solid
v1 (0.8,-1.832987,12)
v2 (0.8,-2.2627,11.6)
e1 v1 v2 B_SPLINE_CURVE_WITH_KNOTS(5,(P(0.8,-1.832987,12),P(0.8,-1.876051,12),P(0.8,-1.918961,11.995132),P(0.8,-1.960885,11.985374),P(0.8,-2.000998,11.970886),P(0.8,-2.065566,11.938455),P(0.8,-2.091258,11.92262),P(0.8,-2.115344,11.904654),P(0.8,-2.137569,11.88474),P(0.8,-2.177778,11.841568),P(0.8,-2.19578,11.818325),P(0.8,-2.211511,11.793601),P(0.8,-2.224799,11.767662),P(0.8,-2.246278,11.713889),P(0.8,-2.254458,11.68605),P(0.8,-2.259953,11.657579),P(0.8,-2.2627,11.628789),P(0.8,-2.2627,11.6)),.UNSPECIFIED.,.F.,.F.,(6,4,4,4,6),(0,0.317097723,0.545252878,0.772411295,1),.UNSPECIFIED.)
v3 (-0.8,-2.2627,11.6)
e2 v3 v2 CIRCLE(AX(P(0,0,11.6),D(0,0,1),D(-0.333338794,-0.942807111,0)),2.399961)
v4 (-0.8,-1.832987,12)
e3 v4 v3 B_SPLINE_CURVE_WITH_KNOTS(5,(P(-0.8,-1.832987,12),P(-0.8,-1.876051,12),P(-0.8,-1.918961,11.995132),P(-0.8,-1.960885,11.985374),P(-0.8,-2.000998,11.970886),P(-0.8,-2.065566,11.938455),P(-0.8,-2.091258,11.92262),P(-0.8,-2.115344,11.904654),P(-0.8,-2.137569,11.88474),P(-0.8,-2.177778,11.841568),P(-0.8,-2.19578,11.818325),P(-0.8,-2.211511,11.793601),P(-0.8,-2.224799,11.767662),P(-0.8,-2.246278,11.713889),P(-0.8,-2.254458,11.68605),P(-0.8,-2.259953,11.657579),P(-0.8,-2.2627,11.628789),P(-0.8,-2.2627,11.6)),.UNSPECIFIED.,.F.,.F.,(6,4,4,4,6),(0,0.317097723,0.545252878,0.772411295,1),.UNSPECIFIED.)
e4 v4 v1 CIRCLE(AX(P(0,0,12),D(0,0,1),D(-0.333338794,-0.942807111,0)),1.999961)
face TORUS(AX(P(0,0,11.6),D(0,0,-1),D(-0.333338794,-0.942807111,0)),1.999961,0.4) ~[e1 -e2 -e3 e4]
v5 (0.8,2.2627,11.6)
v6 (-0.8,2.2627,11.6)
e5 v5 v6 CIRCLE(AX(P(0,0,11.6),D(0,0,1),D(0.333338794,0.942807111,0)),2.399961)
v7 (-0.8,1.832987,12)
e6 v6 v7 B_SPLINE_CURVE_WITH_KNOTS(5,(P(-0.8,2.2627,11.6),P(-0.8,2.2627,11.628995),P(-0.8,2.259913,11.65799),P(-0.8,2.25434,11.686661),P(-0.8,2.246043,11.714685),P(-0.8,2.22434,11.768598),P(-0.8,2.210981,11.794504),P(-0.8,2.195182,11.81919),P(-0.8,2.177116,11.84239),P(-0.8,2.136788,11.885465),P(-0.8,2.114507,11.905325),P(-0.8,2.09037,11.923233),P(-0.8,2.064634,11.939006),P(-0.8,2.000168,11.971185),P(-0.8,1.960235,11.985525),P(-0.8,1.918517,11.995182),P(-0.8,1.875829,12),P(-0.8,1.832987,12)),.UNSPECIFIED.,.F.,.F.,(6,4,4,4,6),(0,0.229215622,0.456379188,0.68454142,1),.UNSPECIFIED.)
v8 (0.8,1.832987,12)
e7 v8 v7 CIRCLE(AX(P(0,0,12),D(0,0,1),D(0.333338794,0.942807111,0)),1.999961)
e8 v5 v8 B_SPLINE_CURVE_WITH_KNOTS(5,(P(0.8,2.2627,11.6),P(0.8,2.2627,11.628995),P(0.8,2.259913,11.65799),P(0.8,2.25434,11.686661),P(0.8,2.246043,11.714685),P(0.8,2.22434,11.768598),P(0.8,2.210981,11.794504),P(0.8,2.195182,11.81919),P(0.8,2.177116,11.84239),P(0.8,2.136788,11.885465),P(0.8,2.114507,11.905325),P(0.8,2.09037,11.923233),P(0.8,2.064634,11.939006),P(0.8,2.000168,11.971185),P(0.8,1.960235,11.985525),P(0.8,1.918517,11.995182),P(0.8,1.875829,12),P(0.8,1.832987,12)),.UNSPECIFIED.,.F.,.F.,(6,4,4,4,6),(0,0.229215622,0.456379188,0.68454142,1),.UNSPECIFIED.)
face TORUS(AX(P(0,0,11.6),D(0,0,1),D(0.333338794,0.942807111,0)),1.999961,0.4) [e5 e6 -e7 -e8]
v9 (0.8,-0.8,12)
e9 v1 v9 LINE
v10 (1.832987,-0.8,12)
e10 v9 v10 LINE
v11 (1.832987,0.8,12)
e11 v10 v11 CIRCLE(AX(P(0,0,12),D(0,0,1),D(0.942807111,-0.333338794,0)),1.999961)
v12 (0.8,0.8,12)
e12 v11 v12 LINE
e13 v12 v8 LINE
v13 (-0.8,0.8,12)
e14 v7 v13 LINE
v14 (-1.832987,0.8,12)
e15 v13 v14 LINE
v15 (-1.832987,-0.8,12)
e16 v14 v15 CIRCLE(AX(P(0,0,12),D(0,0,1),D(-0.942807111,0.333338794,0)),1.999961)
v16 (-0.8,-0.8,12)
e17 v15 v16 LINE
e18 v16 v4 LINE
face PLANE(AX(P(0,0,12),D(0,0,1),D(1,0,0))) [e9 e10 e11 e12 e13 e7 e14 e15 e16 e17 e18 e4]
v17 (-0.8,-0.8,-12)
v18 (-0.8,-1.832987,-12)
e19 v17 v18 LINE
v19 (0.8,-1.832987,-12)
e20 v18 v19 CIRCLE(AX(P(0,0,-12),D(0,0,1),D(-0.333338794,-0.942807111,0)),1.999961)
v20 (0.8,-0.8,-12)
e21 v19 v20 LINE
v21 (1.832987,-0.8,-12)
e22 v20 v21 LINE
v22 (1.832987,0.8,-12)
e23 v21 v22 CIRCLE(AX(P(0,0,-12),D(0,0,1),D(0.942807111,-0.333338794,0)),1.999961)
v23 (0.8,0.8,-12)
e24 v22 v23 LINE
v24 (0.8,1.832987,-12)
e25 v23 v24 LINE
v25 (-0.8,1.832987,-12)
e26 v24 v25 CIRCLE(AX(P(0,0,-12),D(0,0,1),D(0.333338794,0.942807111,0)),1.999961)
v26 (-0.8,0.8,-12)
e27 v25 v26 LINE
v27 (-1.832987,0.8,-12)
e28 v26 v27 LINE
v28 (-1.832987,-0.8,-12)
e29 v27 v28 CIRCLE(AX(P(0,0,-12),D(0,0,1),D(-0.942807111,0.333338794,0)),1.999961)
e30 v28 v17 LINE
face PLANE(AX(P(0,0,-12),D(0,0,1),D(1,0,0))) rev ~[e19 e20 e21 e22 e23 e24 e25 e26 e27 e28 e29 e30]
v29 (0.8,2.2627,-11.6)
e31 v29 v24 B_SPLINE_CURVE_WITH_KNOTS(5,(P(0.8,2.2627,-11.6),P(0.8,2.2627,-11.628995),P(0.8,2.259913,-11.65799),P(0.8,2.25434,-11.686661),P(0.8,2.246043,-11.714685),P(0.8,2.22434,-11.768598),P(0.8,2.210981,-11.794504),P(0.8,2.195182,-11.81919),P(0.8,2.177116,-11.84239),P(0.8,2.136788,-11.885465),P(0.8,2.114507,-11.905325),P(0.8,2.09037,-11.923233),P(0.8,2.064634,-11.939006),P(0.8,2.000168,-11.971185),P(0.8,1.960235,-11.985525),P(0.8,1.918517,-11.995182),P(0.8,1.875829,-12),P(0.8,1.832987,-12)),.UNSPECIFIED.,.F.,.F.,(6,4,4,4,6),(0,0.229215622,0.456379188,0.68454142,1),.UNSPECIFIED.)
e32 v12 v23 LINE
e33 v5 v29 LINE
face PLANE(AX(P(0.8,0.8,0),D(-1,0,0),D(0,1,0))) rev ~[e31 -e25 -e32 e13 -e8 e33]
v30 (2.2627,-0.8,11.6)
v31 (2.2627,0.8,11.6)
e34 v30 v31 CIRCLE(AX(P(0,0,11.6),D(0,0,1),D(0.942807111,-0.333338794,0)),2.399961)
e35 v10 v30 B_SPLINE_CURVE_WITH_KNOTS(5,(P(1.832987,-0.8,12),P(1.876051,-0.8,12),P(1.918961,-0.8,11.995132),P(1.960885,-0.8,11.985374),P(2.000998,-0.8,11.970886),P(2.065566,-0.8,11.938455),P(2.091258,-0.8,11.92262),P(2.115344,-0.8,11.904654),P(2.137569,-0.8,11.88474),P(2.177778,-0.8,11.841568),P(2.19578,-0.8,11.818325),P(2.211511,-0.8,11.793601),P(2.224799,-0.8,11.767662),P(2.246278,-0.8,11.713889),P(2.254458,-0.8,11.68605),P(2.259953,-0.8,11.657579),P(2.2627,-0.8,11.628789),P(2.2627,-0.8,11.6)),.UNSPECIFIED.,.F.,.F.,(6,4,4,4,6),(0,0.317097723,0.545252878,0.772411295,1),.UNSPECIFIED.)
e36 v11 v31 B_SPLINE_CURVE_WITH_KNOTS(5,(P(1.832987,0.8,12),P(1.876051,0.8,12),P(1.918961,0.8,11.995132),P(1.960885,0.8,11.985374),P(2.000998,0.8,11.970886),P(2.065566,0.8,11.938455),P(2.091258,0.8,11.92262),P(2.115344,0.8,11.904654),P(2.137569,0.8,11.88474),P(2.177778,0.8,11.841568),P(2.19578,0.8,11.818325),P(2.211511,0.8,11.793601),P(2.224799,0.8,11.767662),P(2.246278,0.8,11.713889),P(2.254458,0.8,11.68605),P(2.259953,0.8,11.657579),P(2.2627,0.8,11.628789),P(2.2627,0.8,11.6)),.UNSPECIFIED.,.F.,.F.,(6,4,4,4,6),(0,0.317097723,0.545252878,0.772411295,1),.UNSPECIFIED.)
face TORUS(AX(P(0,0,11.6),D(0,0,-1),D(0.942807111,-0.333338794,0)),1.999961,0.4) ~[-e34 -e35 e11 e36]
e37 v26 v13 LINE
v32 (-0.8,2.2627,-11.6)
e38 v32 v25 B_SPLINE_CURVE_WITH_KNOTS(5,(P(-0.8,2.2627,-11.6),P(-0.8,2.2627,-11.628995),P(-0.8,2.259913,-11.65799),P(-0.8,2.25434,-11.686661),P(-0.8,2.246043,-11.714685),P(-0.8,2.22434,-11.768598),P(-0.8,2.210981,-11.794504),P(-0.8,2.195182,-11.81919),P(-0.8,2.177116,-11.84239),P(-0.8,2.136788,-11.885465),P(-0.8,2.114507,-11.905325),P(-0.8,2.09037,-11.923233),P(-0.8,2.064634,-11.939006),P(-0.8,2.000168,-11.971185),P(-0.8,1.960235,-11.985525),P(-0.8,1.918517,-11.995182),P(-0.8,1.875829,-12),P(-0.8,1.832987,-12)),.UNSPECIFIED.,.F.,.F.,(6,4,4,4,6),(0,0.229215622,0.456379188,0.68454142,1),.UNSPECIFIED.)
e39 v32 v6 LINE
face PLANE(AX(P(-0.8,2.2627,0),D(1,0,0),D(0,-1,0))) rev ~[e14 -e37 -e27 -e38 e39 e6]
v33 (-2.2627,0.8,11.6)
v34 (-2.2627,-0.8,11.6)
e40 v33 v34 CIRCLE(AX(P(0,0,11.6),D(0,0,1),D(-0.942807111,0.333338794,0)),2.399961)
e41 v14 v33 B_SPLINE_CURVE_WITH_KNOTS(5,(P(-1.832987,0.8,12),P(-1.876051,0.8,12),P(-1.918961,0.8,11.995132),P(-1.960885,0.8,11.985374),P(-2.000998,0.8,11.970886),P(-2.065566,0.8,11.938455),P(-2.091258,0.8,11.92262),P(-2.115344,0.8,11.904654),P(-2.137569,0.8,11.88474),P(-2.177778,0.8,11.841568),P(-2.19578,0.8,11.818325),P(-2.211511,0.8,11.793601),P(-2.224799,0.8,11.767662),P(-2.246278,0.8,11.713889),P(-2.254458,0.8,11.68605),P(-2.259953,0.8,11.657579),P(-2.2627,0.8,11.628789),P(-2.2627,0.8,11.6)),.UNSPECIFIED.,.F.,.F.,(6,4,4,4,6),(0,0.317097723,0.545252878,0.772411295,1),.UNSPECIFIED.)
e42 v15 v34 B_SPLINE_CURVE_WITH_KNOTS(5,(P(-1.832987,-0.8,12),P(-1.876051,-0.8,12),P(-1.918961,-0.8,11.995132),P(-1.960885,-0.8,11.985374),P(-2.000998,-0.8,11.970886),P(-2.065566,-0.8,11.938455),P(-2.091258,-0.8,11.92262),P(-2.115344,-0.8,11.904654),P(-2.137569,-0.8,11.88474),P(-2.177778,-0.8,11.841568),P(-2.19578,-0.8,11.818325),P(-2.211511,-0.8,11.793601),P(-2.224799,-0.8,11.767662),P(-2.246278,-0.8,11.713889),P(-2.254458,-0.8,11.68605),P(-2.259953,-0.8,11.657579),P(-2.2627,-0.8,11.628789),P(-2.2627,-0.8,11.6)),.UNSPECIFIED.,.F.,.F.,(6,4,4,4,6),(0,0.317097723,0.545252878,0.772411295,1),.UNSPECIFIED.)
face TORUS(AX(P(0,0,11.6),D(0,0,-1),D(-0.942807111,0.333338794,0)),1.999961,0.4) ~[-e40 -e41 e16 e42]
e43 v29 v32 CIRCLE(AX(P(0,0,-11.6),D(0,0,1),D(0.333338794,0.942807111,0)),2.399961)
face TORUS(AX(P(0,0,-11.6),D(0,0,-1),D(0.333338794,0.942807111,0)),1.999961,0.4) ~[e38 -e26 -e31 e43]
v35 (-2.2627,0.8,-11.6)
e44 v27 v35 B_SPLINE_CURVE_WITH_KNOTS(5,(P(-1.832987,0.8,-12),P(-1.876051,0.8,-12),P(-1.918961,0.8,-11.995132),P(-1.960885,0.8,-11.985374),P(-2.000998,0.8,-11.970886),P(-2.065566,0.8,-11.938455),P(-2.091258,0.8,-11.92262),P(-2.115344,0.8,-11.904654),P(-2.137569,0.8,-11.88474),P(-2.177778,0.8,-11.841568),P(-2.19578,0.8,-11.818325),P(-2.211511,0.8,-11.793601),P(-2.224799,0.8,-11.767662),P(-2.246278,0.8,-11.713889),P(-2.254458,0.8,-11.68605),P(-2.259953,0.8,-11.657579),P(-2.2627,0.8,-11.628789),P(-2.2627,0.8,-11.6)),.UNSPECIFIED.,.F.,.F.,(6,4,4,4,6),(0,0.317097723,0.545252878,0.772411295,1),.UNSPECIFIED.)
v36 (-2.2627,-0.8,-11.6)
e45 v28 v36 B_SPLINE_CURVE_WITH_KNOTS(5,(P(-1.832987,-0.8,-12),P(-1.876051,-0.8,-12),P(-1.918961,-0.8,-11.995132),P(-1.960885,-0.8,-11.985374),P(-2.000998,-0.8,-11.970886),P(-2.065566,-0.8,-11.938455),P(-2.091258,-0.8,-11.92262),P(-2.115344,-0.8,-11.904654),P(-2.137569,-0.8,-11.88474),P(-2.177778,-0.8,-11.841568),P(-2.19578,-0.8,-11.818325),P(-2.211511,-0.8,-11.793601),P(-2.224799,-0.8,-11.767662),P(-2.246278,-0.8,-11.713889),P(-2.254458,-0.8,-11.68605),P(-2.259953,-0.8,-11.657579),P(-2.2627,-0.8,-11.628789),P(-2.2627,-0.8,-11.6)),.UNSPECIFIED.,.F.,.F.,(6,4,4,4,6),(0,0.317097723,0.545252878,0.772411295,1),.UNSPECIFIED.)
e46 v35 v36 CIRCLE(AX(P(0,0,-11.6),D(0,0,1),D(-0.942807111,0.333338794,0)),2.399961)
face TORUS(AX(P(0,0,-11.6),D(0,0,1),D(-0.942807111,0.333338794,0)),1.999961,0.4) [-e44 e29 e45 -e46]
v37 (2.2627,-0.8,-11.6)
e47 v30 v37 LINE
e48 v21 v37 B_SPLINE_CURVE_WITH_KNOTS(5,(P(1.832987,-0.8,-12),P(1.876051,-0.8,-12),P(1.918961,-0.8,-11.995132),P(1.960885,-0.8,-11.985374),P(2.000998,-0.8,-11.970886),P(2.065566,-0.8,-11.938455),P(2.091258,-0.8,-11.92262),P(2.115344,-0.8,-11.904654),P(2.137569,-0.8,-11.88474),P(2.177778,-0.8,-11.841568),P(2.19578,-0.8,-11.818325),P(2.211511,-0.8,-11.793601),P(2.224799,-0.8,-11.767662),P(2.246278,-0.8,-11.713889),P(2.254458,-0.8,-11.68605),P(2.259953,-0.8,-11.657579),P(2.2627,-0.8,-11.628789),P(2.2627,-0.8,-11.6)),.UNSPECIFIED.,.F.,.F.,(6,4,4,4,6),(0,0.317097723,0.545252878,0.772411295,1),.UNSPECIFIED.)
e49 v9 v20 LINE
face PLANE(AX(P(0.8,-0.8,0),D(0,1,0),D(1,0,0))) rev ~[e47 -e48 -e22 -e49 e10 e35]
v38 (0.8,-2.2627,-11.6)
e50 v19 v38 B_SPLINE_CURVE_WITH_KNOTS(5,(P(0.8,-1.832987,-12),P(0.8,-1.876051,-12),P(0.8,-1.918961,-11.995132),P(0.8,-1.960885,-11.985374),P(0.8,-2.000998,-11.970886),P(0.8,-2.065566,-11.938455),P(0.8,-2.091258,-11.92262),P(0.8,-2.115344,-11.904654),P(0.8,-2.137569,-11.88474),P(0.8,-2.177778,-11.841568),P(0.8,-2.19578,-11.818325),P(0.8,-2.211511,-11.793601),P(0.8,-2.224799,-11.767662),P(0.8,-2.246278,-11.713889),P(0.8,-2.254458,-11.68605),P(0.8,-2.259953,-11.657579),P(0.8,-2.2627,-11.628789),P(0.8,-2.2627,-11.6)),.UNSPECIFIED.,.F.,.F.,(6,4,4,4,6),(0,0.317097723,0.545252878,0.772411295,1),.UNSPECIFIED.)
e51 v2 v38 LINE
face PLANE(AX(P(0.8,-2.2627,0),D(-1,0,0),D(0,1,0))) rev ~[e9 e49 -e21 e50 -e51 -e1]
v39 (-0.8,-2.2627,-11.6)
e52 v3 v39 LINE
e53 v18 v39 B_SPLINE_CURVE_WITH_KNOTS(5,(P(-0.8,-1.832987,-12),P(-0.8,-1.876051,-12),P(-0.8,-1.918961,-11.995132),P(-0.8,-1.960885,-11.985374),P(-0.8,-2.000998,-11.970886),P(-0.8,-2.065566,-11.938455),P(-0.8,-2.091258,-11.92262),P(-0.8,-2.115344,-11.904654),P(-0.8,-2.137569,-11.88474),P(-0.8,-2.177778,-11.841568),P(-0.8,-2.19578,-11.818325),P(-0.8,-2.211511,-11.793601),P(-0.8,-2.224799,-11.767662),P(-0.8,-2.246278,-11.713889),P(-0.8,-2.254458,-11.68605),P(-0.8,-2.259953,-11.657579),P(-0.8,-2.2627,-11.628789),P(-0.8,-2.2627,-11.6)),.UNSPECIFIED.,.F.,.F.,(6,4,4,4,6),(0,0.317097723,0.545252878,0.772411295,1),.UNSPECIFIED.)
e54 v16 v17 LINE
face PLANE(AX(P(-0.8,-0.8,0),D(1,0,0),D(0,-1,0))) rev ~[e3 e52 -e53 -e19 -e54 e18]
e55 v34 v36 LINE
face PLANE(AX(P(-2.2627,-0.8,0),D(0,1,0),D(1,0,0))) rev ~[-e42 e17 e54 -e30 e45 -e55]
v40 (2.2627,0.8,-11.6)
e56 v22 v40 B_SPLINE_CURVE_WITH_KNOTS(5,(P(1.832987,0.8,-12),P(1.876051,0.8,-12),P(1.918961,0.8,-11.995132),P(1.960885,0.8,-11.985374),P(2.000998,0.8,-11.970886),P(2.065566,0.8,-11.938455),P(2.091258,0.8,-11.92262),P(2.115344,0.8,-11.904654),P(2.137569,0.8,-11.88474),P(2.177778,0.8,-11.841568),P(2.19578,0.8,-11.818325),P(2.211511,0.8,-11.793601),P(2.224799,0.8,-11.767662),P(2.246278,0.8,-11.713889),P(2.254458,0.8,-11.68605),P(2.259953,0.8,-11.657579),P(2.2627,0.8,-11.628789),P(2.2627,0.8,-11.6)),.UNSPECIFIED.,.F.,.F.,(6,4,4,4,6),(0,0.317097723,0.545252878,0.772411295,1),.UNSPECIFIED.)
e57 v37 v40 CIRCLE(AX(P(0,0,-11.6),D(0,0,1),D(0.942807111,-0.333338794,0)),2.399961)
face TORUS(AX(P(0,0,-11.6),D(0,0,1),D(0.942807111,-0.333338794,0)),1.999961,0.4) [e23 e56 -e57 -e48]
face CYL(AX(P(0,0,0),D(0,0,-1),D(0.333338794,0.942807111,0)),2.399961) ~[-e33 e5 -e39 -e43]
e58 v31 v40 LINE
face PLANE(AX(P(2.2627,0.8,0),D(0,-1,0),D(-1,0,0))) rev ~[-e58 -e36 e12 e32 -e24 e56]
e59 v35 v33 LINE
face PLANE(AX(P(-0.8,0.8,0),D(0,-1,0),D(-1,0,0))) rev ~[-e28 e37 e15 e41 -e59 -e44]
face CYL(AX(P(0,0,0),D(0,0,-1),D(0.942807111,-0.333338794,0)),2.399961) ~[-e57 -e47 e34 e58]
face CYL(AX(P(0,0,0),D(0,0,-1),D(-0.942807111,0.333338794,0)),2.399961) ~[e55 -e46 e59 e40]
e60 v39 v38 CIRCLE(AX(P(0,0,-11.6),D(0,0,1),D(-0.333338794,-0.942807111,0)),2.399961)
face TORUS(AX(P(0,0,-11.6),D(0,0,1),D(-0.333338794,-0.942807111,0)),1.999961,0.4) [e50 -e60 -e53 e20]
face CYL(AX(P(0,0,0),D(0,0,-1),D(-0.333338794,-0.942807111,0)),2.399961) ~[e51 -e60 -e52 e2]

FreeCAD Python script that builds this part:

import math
import FreeCAD as App
import Part
import Sketcher
Q = App.Units.Quantity


def edges_at(feature, points):
    """Names of the edges that pass closest to the given points."""
    edges = feature.Shape.Edges
    near = lambda p: min(range(len(edges)), key=lambda i: edges[i].distToShape(Part.Vertex(*p))[0])
    return sorted({f"Edge{near(p) + 1}" for p in points})

doc = App.newDocument("Part")
body = doc.addObject("PartDesign::Body", "Body")

# Sketch on XY plane
sketch1 = body.newObject("Sketcher::SketchObject", "Sketch")
sketch1.AttachmentSupport = (doc.getObject("XY_Plane"), [""])
sketch1.MapMode = "FlatFace"
sketch1.addGeometry([
    Part.ArcOfCircle(Part.Circle(App.Vector(0, 0, 0), App.Vector(0, 0, 1), 2.4), math.radians(71), math.radians(109)),  # 0
    Part.LineSegment(App.Vector(-0.8, 2.3, 0), App.Vector(-0.8, 0.8, 0)),  # 1
    Part.LineSegment(App.Vector(-0.8, 0.8, 0), App.Vector(-2.3, 0.8, 0)),  # 2
    Part.ArcOfCircle(Part.Circle(App.Vector(0, 0, 0), App.Vector(0, 0, 1), 2.4), math.radians(161), math.radians(199)),  # 3
    Part.LineSegment(App.Vector(-2.3, -0.8, 0), App.Vector(-0.8, -0.8, 0)),  # 4
    Part.LineSegment(App.Vector(-0.8, -0.8, 0), App.Vector(-0.8, -2.3, 0)),  # 5
    Part.ArcOfCircle(Part.Circle(App.Vector(0, 0, 0), App.Vector(0, 0, 1), 2.4), math.radians(-109), math.radians(-71)),  # 6
    Part.LineSegment(App.Vector(0.8, -2.3, 0), App.Vector(0.8, -0.8, 0)),  # 7
    Part.LineSegment(App.Vector(0.8, -0.8, 0), App.Vector(2.3, -0.8, 0)),  # 8
    Part.ArcOfCircle(Part.Circle(App.Vector(0, 0, 0), App.Vector(0, 0, 1), 2.4), math.radians(-19), math.radians(19)),  # 9
    Part.LineSegment(App.Vector(2.3, 0.8, 0), App.Vector(0.8, 0.8, 0)),  # 10
    Part.LineSegment(App.Vector(0.8, 0.8, 0), App.Vector(0.8, 2.3, 0)),  # 11
], False)
sketch1.addConstraint([
    Sketcher.Constraint("Coincident", 0, 2, 1, 1),
    Sketcher.Constraint("Coincident", 1, 2, 2, 1),
    Sketcher.Constraint("Coincident", 2, 2, 3, 1),
    Sketcher.Constraint("Coincident", 3, 2, 4, 1),
    Sketcher.Constraint("Coincident", 4, 2, 5, 1),
    Sketcher.Constraint("Coincident", 5, 2, 6, 1),
    Sketcher.Constraint("Coincident", 6, 2, 7, 1),
    Sketcher.Constraint("Coincident", 7, 2, 8, 1),
    Sketcher.Constraint("Coincident", 8, 2, 9, 1),
    Sketcher.Constraint("Coincident", 9, 2, 10, 1),
    Sketcher.Constraint("Coincident", 10, 2, 11, 1),
    Sketcher.Constraint("Coincident", 11, 2, 0, 1),
    Sketcher.Constraint("Vertical", 1),
    Sketcher.Constraint("Horizontal", 2),
    Sketcher.Constraint("Horizontal", 4),
    Sketcher.Constraint("Vertical", 5),
    Sketcher.Constraint("Vertical", 7),
    Sketcher.Constraint("Horizontal", 8),
    Sketcher.Constraint("Horizontal", 10),
    Sketcher.Constraint("Vertical", 11),
    Sketcher.Constraint("Coincident", 0, 3, -1, 1),
    Sketcher.Constraint("Coincident", 3, 3, -1, 1),
    Sketcher.Constraint("Coincident", 6, 3, -1, 1),
    Sketcher.Constraint("Coincident", 9, 3, -1, 1),
    Sketcher.Constraint("Equal", 0, 3),
    Sketcher.Constraint("Equal", 3, 6),
    Sketcher.Constraint("Equal", 6, 9),
    Sketcher.Constraint("Symmetric", 1, 2, 7, 2, -1, 1),
    Sketcher.Constraint("Symmetric", 4, 2, 10, 2, -1, 1),
    Sketcher.Constraint("Symmetric", 4, 2, 7, 2, -2),
    Sketcher.Constraint("Equal", 10, 1),
    Sketcher.Constraint("Radius", 0, Q("2.4 mm")),
    Sketcher.Constraint("DistanceY", 3, 2, 2, 2, Q("1.6 mm")),
])
pad1 = body.newObject("PartDesign::Pad", "Pad")
pad1.Profile = sketch1
pad1.Length = 24
pad1.Midplane = True
doc.recompute()

fillet = body.newObject("PartDesign::Fillet", "Fillet")
fillet.Base = (pad1, edges_at(pad1, [
    (0, 2.4, 12),
    (-2.4, 0, 12),
    (0, -2.4, 12),
    (2.4, 0, 12),
    (2.4, 0, -12),
    (0, 2.4, -12),
    (-2.4, 0, -12),
    (0, -2.4, -12),
]))
fillet.Radius = 0.4

doc.recompute()
